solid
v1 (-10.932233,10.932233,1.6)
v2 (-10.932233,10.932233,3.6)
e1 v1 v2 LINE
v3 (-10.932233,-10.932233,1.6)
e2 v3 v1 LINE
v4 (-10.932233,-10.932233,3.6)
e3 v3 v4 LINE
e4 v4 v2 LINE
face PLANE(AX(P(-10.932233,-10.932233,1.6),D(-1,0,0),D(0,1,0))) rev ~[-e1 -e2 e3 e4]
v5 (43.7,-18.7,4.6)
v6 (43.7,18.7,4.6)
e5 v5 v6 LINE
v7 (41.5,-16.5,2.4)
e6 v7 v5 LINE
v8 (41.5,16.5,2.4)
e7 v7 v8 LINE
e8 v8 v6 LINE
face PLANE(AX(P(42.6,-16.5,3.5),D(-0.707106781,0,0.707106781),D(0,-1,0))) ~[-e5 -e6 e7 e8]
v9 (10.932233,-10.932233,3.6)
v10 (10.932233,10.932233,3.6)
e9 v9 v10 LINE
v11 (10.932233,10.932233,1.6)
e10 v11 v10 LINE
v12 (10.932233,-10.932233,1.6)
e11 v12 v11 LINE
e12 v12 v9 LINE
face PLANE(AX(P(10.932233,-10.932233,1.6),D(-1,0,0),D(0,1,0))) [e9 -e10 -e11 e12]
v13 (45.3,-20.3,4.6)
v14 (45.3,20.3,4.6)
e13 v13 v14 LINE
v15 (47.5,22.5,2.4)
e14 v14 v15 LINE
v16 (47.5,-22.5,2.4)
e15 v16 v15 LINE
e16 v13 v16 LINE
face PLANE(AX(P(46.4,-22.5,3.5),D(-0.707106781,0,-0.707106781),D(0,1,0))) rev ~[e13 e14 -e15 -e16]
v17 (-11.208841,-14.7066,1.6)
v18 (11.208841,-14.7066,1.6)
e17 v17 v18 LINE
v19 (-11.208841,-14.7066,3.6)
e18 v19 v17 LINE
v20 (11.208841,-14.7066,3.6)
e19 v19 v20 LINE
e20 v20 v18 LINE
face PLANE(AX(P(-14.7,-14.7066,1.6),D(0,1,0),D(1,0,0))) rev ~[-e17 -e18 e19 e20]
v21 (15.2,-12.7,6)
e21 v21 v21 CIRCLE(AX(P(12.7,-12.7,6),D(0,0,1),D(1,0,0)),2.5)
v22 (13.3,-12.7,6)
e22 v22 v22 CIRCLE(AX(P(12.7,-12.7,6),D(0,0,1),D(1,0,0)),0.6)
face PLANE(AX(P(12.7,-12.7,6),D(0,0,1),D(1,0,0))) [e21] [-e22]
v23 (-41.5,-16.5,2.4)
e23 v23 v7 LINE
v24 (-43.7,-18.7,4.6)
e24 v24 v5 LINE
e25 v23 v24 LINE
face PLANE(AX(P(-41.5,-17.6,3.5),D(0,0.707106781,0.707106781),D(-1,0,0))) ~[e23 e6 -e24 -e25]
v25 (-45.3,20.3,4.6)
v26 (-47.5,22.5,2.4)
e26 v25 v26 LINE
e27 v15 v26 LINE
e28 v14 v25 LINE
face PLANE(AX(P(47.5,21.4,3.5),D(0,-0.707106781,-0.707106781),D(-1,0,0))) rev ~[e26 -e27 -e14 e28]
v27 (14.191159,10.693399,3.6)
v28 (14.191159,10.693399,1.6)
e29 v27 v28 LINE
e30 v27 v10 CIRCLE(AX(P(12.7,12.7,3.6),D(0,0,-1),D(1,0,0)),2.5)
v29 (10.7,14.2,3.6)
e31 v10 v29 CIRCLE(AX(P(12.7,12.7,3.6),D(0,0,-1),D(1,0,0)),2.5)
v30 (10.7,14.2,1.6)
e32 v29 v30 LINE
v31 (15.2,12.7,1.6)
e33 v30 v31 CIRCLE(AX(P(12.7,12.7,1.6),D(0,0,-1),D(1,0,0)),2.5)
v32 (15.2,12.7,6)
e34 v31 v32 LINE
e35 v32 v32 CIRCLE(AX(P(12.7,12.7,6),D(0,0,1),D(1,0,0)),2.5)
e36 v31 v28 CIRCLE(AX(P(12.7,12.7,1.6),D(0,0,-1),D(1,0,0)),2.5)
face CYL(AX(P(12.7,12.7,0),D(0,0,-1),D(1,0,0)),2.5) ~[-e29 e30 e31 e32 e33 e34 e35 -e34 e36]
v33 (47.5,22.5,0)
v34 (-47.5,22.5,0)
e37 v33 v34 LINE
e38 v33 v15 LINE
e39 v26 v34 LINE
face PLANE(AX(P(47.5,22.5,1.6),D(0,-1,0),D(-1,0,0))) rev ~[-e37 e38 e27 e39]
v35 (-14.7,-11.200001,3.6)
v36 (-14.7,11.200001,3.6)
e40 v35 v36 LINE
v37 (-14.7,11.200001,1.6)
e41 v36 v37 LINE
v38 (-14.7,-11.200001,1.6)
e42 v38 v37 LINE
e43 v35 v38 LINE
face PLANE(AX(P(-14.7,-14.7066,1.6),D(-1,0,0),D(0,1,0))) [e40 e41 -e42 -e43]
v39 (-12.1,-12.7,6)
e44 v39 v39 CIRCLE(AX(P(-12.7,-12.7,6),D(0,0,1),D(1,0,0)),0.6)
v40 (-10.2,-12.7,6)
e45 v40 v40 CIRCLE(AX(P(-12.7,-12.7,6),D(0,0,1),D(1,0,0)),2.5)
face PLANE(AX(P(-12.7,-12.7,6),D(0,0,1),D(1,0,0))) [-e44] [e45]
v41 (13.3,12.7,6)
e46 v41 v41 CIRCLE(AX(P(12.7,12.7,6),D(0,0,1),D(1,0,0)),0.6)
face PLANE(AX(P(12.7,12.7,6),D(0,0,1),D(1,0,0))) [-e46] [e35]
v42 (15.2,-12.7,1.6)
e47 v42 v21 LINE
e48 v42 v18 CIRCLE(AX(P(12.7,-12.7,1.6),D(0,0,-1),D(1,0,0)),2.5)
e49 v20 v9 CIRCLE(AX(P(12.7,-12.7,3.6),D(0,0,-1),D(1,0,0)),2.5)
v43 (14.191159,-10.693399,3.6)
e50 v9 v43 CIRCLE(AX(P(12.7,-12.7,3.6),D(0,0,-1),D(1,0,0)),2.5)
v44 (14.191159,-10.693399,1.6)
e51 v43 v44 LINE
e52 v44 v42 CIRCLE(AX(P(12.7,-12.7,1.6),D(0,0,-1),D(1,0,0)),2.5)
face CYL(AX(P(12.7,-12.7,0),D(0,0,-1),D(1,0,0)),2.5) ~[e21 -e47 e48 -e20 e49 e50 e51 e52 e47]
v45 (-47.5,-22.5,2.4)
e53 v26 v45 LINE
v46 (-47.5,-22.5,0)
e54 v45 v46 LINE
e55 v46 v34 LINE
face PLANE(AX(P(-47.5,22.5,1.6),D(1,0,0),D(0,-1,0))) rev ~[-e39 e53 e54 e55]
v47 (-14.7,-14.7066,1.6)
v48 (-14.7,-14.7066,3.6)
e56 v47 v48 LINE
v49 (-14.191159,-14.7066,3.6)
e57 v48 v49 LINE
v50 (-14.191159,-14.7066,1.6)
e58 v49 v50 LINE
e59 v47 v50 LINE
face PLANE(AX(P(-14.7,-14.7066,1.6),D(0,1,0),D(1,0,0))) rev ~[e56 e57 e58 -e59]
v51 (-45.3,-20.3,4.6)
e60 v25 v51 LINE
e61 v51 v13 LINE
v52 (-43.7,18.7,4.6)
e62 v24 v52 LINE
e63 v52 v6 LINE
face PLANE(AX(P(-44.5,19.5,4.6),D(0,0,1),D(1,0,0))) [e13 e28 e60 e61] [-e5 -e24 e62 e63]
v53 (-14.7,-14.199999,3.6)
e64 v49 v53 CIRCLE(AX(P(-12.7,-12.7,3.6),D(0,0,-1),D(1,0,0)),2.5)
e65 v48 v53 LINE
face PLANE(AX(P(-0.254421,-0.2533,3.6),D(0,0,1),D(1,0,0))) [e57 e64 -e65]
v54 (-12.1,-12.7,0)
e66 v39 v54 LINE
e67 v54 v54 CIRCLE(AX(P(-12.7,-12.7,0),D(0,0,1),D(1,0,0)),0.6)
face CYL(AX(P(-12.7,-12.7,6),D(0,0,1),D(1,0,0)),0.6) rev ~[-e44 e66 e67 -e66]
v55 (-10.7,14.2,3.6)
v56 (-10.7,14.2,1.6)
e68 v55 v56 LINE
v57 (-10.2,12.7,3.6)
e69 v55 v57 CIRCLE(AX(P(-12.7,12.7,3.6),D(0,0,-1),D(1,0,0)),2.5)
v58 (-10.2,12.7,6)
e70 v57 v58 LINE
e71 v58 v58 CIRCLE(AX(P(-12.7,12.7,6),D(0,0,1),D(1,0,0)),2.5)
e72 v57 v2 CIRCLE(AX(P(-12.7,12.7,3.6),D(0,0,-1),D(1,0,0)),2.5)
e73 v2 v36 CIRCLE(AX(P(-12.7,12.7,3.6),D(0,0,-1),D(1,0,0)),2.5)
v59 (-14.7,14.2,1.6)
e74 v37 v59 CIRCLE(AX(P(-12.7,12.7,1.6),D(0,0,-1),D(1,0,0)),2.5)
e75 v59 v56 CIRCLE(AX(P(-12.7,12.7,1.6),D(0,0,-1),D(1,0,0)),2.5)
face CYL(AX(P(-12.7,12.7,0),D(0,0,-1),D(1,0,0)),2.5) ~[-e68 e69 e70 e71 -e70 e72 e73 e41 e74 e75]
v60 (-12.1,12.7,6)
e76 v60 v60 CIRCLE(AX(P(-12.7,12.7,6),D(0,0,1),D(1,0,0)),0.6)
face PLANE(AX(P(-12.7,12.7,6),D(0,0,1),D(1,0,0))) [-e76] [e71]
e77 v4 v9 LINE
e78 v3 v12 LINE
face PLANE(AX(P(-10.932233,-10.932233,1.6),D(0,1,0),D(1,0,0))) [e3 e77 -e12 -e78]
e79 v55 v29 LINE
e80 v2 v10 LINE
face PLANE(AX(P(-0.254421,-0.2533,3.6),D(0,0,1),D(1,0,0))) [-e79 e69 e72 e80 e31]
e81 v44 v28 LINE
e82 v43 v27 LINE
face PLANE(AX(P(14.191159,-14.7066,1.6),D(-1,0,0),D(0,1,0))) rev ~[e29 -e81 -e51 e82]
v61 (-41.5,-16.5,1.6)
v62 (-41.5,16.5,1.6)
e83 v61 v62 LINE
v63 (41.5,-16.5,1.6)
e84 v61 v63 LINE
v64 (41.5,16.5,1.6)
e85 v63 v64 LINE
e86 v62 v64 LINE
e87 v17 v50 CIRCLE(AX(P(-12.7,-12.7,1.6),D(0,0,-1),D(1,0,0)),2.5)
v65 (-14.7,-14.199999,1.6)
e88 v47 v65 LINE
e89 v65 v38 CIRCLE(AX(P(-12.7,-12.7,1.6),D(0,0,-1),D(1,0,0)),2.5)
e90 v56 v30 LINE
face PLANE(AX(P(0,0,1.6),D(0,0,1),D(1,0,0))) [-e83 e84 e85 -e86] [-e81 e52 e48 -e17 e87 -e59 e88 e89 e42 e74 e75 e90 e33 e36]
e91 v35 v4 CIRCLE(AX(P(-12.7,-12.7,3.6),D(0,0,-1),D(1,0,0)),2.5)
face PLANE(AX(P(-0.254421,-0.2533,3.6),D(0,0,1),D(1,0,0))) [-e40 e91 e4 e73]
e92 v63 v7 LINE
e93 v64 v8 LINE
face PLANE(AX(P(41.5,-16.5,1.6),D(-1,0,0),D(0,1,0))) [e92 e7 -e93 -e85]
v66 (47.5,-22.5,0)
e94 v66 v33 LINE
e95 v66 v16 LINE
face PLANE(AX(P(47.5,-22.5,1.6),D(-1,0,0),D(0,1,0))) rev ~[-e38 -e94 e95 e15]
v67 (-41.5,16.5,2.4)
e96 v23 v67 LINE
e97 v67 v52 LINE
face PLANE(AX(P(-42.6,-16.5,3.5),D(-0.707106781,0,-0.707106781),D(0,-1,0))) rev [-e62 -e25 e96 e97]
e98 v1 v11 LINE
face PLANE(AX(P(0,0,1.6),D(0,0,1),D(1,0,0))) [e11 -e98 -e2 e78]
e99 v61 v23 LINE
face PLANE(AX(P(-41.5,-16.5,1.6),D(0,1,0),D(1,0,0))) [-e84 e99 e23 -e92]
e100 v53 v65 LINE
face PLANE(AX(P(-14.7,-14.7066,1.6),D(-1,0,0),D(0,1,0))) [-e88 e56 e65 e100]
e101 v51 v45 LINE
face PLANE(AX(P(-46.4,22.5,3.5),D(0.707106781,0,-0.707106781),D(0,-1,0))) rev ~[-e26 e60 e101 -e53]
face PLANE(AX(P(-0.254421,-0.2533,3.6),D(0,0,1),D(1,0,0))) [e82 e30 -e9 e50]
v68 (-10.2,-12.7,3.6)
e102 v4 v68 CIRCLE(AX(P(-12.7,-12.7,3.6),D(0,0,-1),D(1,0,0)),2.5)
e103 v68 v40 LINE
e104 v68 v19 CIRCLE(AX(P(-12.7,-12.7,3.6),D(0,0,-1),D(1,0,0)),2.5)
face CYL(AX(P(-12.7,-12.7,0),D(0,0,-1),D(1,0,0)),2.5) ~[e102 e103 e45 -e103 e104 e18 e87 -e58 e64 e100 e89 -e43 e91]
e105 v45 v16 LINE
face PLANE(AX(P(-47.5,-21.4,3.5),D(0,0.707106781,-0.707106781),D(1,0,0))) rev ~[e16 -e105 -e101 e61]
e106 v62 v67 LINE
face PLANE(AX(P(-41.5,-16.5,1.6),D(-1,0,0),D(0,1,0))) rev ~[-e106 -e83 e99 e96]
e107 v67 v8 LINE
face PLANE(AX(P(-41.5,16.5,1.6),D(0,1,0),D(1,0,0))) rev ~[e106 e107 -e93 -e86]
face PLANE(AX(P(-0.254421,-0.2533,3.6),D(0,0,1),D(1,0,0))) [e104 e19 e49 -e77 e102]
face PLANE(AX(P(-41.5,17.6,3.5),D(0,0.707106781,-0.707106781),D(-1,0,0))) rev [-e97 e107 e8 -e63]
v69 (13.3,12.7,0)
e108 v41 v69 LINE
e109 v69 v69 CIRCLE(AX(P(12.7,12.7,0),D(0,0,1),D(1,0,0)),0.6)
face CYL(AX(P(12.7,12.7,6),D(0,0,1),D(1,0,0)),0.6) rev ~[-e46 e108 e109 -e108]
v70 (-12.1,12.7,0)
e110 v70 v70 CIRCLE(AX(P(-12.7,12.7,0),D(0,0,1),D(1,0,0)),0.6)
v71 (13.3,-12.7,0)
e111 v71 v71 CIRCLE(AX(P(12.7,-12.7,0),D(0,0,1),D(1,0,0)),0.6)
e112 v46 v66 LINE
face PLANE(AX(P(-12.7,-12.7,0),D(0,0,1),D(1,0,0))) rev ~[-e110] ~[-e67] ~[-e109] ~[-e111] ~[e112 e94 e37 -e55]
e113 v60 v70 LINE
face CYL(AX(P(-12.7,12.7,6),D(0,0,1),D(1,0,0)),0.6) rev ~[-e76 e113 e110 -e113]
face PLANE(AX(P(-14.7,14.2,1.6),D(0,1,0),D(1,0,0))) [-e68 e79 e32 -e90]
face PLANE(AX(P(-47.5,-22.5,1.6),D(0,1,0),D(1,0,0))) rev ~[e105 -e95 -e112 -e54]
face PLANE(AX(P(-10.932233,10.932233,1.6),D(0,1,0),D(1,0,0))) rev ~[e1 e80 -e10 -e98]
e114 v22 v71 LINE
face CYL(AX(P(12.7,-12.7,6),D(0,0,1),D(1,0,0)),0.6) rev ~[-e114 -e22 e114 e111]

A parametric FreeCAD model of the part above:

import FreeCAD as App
import Part
import Sketcher


def edges_at(feature, points):
    """Names of the edges that pass closest to the given points."""
    edges = feature.Shape.Edges
    near = lambda p: min(range(len(edges)), key=lambda i: edges[i].distToShape(Part.Vertex(*p))[0])
    return sorted({f"Edge{near(p) + 1}" for p in points})


def add_polygon(sketch, points):
    """Adds a closed chain of lines whose ends are joined by coincident constraints."""
    first, n = sketch.GeometryCount, len(points)
    for a, b in zip(points, points[1:] + points[:1]):
        sketch.addGeometry(Part.LineSegment(App.Vector(*a, 0), App.Vector(*b, 0)), False)
    for i in range(n):
        sketch.addConstraint(Sketcher.Constraint("Coincident", first + i, 2, first + (i + 1) % n, 1))

doc = App.newDocument("Part")
params = doc.addObject("Spreadsheet::Sheet", "Params")
for row, (alias, value) in enumerate([
    ("sketch1_width", "95 mm"),
    ("sketch1_height", "45 mm"),
    ("pad1_length", "1.6 mm"),
    ("sketch2_diameter", "5 mm"),
    ("pad2_length", "6 mm"),
    ("sketch3_width", "95 mm"),
    ("sketch3_width2", "83 mm"),
    ("sketch3_height", "45 mm"),
    ("sketch3_height2", "33 mm"),
    ("pad3_length", "3 mm"),
    ("pad4_length", "2 mm"),
    ("sketch5_diameter", "1.2 mm"),
    ("pocket1_length", "6 mm"),
    ("chamfer_size", "2.2 mm"),
], start=1):
    params.set(f"A{row}", alias)
    params.set(f"B{row}", "=" + value)
    params.setAlias(f"B{row}", alias)

body = doc.addObject("PartDesign::Body", "Body")

# Sketch on XY plane
sketch1 = body.newObject("Sketcher::SketchObject", "Sketch")
sketch1.AttachmentSupport = (doc.getObject("XY_Plane"), [""])
sketch1.MapMode = "FlatFace"
add_polygon(sketch1, [(48, -22), (48, 22), (-48, 22), (-48, -22)])  # lines 0-3
sketch1.addConstraint([
    Sketcher.Constraint("Vertical", 0),
    Sketcher.Constraint("Horizontal", 1),
    Sketcher.Constraint("Vertical", 2),
    Sketcher.Constraint("Horizontal", 3),
    Sketcher.Constraint("Symmetric", 0, 2, 2, 2, -1, 1),
    Sketcher.Constraint("DistanceX", 1, 2, 1, 1, 95.0),
    Sketcher.Constraint("DistanceY", 0, 1, 0, 2, 45.0),
])
sketch1.setExpression("Constraints[9]", "Params.sketch1_width")
sketch1.setExpression("Constraints[10]", "Params.sketch1_height")
pad1 = body.newObject("PartDesign::Pad", "Pad")
pad1.Profile = sketch1
pad1.setExpression("Length", "Params.pad1_length")

# Sketch on XY plane
sketch2 = body.newObject("Sketcher::SketchObject", "Sketch001")
sketch2.AttachmentSupport = (doc.getObject("XY_Plane"), [""])
sketch2.MapMode = "FlatFace"
sketch2.addGeometry([
    Part.Circle(App.Vector(-12.7, -12.7, 0), App.Vector(0, 0, 1), 2.5),
    Part.Circle(App.Vector(-12.7, 12.7, 0), App.Vector(0, 0, 1), 2.5),
    Part.Circle(App.Vector(12.7, -12.7, 0), App.Vector(0, 0, 1), 2.5),
    Part.Circle(App.Vector(12.7, 12.7, 0), App.Vector(0, 0, 1), 2.5),
], False)
sketch2.addConstraint([
    Sketcher.Constraint("Equal", 0, 1),
    Sketcher.Constraint("Equal", 1, 2),
    Sketcher.Constraint("Equal", 2, 3),
    Sketcher.Constraint("Symmetric", 1, 3, 2, 3, -1, 1),
    Sketcher.Constraint("Symmetric", 0, 3, 3, 3, -1, 1),
    Sketcher.Constraint("Symmetric", 0, 3, 2, 3, -2),
    Sketcher.Constraint("Diameter", 0, 5.0),
    Sketcher.Constraint("DistanceX", 0, 3, -1, 1, 12.7),
    Sketcher.Constraint("DistanceY", 0, 3, -1, 1, 12.7),
])
sketch2.setExpression("Constraints[6]", "Params.sketch2_diameter")
pad2 = body.newObject("PartDesign::Pad", "Pad001")
pad2.Profile = sketch2
pad2.setExpression("Length", "Params.pad2_length")

# Sketch on XY plane
sketch3 = body.newObject("Sketcher::SketchObject", "Sketch002")
sketch3.AttachmentSupport = (doc.getObject("XY_Plane"), [""])
sketch3.MapMode = "FlatFace"
sketch3.AttachmentOffset = App.Placement(App.Vector(0, 0, 1.6), App.Rotation())
add_polygon(sketch3, [(-48, -22), (48, -22), (48, 22), (-48, 22)])  # lines 0-3
add_polygon(sketch3, [(42, -16), (-42, -16), (-42, 16), (42, 16)])  # lines 4-7
sketch3.addConstraint([
    Sketcher.Constraint("Horizontal", 0),
    Sketcher.Constraint("Vertical", 1),
    Sketcher.Constraint("Horizontal", 2),
    Sketcher.Constraint("Vertical", 3),
    Sketcher.Constraint("Horizontal", 4),
    Sketcher.Constraint("Vertical", 5),
    Sketcher.Constraint("Horizontal", 6),
    Sketcher.Constraint("Vertical", 7),
    Sketcher.Constraint("Symmetric", 0, 2, 2, 2, -1, 1),
    Sketcher.Constraint("Symmetric", 4, 2, 6, 2, -1, 1),
    Sketcher.Constraint("DistanceX", 0, 1, 0, 2, 95.0),
    Sketcher.Constraint("DistanceX", 4, 2, 4, 1, 83.0),
    Sketcher.Constraint("DistanceY", 1, 1, 1, 2, 45.0),
    Sketcher.Constraint("DistanceY", 5, 1, 5, 2, 33.0),
])
sketch3.setExpression("Constraints[18]", "Params.sketch3_width")
sketch3.setExpression("Constraints[19]", "Params.sketch3_width2")
sketch3.setExpression("Constraints[20]", "Params.sketch3_height")
sketch3.setExpression("Constraints[21]", "Params.sketch3_height2")
pad3 = body.newObject("PartDesign::Pad", "Pad002")
pad3.Profile = sketch3
pad3.setExpression("Length", "Params.pad3_length")

# Sketch on XY plane
sketch4 = body.newObject("Sketcher::SketchObject", "Sketch003")
sketch4.AttachmentSupport = (doc.getObject("XY_Plane"), [""])
sketch4.MapMode = "FlatFace"
sketch4.AttachmentOffset = App.Placement(App.Vector(0, 0, 1.6), App.Rotation())
add_polygon(sketch4, [(-15, 14), (-15, -15), (14, -15), (14, 14)])  # lines 0-3
add_polygon(sketch4, [(11, -11), (-11, -11), (-11, 11), (11, 11)])  # lines 4-7
sketch4.addConstraint([
    Sketcher.Constraint("Vertical", 0),
    Sketcher.Constraint("Horizontal", 1),
    Sketcher.Constraint("Vertical", 2),
    Sketcher.Constraint("Horizontal", 3),
    Sketcher.Constraint("Horizontal", 4),
    Sketcher.Constraint("Vertical", 5),
    Sketcher.Constraint("Horizontal", 6),
    Sketcher.Constraint("Vertical", 7),
    Sketcher.Constraint("Symmetric", 4, 2, 6, 2, -1, 1),
    Sketcher.Constraint("Equal", 6, 5),
    Sketcher.Constraint("DistanceX", 0, 2, -1, 1, 14.7),
    Sketcher.Constraint("DistanceY", -1, 1, 2, 2, 14.2),
    Sketcher.Constraint("DistanceY", 0, 2, 0, 1, 28.9066),
    Sketcher.Constraint("DistanceX", 1, 1, 1, 2, 28.891159),
    Sketcher.Constraint("DistanceX", 4, 2, 4, 1, 21.864466),
])
pad4 = body.newObject("PartDesign::Pad", "Pad003")
pad4.Profile = sketch4
pad4.setExpression("Length", "Params.pad4_length")

# Sketch on XY plane
sketch5 = body.newObject("Sketcher::SketchObject", "Sketch004")
sketch5.AttachmentSupport = (doc.getObject("XY_Plane"), [""])
sketch5.MapMode = "FlatFace"
sketch5.AttachmentOffset = App.Placement(App.Vector(0, 0, 6), App.Rotation())
sketch5.addGeometry([
    Part.Circle(App.Vector(-12.7, 12.7, 0), App.Vector(0, 0, 1), 0.6),
    Part.Circle(App.Vector(12.7, 12.7, 0), App.Vector(0, 0, 1), 0.6),
    Part.Circle(App.Vector(12.7, -12.7, 0), App.Vector(0, 0, 1), 0.6),
    Part.Circle(App.Vector(-12.7, -12.7, 0), App.Vector(0, 0, 1), 0.6),
], False)
sketch5.addConstraint([
    Sketcher.Constraint("Equal", 0, 1),
    Sketcher.Constraint("Equal", 1, 2),
    Sketcher.Constraint("Equal", 2, 3),
    Sketcher.Constraint("Symmetric", 0, 3, 2, 3, -1, 1),
    Sketcher.Constraint("Symmetric", 1, 3, 3, 3, -1, 1),
    Sketcher.Constraint("Symmetric", 0, 3, 1, 3, -2),
    Sketcher.Constraint("Diameter", 0, 1.2),
    Sketcher.Constraint("DistanceX", 0, 3, -1, 1, 12.7),
    Sketcher.Constraint("DistanceY", -1, 1, 0, 3, 12.7),
])
sketch5.setExpression("Constraints[6]", "Params.sketch5_diameter")
pocket1 = body.newObject("PartDesign::Pocket", "Pocket")
pocket1.Profile = sketch5
pocket1.setExpression("Length", "Params.pocket1_length")
doc.recompute()

chamfer = body.newObject("PartDesign::Chamfer", "Chamfer")
chamfer.Base = (pocket1, edges_at(pocket1, [
    (0, 16.5, 4.6),
    (-41.5, 0, 4.6),
    (-47.5, 0, 4.6),
    (0, 22.5, 4.6),
    (0, -22.5, 4.6),
    (47.5, 0, 4.6),
    (41.5, 0, 4.6),
    (0, -16.5, 4.6),
]))
chamfer.setExpression("Size", "Params.chamfer_size")

doc.recompute()
